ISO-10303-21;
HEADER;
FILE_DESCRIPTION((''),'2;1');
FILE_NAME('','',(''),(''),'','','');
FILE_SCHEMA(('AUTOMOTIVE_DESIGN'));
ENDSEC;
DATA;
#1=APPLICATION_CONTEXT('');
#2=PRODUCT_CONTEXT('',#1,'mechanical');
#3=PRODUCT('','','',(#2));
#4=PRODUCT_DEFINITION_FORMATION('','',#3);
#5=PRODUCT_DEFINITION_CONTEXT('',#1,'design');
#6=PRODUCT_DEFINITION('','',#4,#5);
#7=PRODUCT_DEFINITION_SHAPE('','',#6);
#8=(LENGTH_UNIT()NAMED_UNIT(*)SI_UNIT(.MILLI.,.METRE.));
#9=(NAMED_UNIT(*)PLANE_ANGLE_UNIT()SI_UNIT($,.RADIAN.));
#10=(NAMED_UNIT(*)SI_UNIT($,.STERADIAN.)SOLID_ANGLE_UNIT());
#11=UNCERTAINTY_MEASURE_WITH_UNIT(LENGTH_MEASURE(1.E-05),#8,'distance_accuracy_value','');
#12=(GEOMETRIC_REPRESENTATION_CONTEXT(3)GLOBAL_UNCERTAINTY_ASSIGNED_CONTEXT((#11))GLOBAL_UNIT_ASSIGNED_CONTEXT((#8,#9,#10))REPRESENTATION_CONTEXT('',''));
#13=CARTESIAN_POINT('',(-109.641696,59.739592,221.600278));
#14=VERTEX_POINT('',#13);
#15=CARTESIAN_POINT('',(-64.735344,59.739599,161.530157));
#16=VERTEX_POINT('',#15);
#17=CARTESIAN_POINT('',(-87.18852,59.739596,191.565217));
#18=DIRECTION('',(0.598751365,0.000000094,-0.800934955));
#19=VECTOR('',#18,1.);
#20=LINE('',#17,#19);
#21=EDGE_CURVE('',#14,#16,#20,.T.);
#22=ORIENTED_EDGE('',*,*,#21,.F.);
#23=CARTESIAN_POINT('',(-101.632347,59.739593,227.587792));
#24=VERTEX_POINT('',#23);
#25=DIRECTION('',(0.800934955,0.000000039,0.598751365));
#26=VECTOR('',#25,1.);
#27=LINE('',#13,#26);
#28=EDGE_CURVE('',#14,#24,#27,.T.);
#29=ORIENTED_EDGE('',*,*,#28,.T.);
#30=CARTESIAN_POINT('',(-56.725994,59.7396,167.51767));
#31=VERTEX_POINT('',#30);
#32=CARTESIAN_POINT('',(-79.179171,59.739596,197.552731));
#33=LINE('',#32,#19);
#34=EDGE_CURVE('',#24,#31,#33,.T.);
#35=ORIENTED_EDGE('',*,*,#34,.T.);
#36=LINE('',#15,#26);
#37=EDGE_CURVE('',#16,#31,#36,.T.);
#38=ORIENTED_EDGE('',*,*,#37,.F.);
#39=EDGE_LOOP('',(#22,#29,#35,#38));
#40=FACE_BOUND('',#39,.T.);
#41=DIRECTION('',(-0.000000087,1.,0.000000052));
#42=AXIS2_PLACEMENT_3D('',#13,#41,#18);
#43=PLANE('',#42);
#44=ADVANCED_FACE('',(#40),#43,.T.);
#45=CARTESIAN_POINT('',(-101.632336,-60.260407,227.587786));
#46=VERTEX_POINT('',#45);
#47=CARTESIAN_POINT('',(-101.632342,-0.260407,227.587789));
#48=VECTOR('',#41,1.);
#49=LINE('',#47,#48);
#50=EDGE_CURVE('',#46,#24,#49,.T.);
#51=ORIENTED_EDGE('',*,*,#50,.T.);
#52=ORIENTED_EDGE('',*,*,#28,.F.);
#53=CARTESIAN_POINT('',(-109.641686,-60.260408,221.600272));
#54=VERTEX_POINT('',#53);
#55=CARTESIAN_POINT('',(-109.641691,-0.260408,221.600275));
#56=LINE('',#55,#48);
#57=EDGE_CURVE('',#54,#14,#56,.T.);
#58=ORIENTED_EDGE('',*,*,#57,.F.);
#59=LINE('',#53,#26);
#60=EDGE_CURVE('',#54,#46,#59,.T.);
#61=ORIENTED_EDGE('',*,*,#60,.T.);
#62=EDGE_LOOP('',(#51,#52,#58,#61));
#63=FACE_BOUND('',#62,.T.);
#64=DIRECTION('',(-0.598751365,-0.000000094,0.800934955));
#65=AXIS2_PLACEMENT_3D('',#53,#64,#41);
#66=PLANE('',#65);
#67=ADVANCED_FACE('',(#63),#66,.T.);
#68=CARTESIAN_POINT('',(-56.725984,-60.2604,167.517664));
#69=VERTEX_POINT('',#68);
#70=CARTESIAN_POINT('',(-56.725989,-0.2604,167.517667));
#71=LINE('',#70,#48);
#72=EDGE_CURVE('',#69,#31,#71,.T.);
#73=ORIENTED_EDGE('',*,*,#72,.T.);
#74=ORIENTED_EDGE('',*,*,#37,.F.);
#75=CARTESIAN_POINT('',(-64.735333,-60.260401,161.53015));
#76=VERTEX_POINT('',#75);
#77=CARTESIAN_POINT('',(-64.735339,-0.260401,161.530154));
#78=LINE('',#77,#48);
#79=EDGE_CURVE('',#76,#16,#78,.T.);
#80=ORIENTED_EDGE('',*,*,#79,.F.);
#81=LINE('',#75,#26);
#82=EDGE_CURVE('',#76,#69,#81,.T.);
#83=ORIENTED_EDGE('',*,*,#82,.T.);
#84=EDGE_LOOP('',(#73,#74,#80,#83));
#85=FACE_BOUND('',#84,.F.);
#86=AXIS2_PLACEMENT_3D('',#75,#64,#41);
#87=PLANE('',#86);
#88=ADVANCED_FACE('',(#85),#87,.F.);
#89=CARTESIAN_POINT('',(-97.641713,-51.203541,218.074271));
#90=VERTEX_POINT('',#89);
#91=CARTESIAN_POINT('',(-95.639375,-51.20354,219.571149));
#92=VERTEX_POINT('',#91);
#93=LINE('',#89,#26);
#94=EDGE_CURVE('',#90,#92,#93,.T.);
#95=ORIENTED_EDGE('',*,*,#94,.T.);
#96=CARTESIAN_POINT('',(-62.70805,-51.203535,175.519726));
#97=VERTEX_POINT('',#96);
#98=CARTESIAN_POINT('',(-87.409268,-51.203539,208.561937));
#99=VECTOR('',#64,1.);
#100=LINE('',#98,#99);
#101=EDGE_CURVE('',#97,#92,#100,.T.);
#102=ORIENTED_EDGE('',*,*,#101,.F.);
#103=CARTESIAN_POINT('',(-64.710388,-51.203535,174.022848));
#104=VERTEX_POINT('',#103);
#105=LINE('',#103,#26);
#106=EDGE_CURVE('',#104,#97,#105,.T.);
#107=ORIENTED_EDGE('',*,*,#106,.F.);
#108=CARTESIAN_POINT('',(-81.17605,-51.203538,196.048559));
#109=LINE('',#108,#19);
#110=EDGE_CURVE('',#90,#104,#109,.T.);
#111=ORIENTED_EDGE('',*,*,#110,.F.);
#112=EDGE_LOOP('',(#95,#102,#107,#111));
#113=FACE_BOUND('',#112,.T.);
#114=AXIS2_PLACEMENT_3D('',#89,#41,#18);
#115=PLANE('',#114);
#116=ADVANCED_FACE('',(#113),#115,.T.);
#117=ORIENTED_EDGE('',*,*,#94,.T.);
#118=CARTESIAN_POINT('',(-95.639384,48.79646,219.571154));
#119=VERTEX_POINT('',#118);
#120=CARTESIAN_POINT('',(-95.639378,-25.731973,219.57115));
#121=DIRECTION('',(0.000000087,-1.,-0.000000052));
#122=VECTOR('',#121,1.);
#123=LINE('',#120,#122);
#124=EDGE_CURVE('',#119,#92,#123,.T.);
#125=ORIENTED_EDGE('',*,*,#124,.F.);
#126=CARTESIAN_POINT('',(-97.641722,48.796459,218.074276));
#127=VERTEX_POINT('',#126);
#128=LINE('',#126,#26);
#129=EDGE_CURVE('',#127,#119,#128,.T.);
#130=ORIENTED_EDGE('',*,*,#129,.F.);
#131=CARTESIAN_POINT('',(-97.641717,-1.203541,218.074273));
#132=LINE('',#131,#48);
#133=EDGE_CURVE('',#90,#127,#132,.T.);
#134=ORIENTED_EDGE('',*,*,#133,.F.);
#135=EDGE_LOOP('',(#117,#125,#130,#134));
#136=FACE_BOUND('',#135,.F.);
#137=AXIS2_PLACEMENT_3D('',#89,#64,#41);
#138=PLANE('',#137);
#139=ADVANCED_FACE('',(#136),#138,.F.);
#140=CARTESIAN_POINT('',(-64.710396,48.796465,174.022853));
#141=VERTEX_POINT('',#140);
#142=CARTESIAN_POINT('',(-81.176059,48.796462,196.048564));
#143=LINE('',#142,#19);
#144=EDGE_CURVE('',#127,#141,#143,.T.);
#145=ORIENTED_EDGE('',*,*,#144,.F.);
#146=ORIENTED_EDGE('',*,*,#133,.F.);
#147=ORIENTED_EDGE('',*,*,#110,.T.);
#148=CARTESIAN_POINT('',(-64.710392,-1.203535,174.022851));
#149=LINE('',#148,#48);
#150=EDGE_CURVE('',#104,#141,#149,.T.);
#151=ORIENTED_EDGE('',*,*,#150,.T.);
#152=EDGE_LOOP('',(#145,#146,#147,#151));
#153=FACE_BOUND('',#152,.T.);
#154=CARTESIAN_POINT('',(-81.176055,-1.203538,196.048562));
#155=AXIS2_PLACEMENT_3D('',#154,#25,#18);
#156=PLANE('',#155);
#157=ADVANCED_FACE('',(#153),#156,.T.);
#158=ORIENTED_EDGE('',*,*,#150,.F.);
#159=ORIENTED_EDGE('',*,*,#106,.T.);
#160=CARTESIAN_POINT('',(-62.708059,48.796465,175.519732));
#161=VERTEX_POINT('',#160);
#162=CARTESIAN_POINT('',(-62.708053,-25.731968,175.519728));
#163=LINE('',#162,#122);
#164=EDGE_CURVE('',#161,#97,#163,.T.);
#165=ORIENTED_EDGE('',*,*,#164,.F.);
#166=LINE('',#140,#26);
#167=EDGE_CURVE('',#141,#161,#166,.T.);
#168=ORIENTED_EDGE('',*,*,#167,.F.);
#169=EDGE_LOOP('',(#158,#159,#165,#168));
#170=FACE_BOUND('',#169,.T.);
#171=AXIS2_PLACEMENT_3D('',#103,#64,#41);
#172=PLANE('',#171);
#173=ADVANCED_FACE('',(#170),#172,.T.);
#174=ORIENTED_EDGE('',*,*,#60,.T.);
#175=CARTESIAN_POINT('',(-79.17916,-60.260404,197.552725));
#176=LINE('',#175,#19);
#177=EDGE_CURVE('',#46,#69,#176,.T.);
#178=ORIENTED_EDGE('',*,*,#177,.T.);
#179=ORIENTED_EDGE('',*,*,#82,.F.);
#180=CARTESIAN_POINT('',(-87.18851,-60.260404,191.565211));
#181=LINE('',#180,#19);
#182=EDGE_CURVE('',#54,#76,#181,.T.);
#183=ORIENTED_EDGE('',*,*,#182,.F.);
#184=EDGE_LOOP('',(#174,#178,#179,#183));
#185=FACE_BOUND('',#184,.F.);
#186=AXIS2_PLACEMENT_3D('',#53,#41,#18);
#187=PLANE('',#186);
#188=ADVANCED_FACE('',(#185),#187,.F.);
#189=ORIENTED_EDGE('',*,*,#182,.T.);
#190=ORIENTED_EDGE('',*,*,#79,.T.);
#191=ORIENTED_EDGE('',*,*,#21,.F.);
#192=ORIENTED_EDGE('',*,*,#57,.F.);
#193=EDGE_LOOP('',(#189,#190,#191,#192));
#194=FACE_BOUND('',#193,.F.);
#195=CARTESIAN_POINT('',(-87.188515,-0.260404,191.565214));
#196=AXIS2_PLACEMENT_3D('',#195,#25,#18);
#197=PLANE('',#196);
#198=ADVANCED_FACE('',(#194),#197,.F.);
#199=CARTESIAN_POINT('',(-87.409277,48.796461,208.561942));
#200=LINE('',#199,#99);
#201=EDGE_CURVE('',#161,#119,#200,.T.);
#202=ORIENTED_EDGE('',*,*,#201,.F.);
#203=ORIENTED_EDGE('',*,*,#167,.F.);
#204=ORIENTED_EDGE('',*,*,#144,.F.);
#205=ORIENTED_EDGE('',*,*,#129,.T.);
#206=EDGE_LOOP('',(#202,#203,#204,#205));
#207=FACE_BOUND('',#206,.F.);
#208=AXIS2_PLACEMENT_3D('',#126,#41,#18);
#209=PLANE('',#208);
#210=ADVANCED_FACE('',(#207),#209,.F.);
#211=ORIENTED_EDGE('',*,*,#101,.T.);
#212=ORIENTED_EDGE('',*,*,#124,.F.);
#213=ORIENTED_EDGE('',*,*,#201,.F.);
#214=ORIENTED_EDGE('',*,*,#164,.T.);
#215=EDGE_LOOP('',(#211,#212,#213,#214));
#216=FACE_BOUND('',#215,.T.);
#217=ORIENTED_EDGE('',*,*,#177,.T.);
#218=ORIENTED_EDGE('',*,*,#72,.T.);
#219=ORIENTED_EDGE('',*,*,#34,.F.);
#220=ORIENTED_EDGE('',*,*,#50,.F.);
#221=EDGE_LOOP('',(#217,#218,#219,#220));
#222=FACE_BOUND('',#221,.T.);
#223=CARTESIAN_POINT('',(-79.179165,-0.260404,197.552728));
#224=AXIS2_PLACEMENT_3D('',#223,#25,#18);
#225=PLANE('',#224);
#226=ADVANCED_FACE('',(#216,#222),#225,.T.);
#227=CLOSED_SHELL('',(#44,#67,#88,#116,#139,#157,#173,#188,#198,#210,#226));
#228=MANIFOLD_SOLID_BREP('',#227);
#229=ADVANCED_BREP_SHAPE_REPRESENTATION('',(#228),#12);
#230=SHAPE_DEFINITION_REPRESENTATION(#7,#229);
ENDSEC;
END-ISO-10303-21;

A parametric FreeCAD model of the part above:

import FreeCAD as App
import Part
import Sketcher

V = App.Vector

doc = App.newDocument("Part")
body = doc.addObject("PartDesign::Body", "Body")

sketch1 = body.newObject("Sketcher::SketchObject", "Sketch")
sketch1.AttachmentSupport = (doc.getObject("XY_Plane"), [""])
sketch1.MapMode = "FlatFace"
sketch1.AttachmentOffset = App.Placement(V(0, 0, 7.5), App.Rotation())
sketch1.addGeometry([
    Part.LineSegment(V(-115, 146, 0), V(-115, 46, 0)),
    Part.LineSegment(V(-115, 46, 0), V(-60, 46, 0)),
    Part.LineSegment(V(-60, 46, 0), V(-60, 146, 0)),
    Part.LineSegment(V(-60, 146, 0), V(-115, 146, 0)),
], False)
sketch1.addConstraint([
    Sketcher.Constraint("Coincident", 0, 2, 1, 1),
    Sketcher.Constraint("Coincident", 1, 2, 2, 1),
    Sketcher.Constraint("Coincident", 2, 2, 3, 1),
    Sketcher.Constraint("Coincident", 3, 2, 0, 1),
    Sketcher.Constraint("Vertical", 0),
    Sketcher.Constraint("Horizontal", 1),
    Sketcher.Constraint("Vertical", 2),
    Sketcher.Constraint("Horizontal", 3),
    Sketcher.Constraint("DistanceX", 1, 1, 1, 2, 55.0),
    Sketcher.Constraint("DistanceY", 0, 2, 0, 1, 100.0),
    Sketcher.Constraint("DistanceX", 0, 2, -1, 1, 115.0),
    Sketcher.Constraint("DistanceY", -1, 1, 0, 2, 45.8),
])
pad1 = body.newObject("PartDesign::Pad", "Pad")
pad1.Profile = sketch1
pad1.Length = 10
body2 = doc.addObject("PartDesign::Body", "Body001")

sketch2 = body2.newObject("Sketcher::SketchObject", "Sketch001")
sketch2.AttachmentSupport = (doc.getObject("XY_Plane001"), [""])
sketch2.MapMode = "FlatFace"
sketch2.addGeometry([
    Part.LineSegment(V(-125, 157, 0), V(-125, 37, 0)),
    Part.LineSegment(V(-125, 37, 0), V(-50, 37, 0)),
    Part.LineSegment(V(-50, 37, 0), V(-50, 157, 0)),
    Part.LineSegment(V(-50, 157, 0), V(-125, 157, 0)),
], False)
sketch2.addConstraint([
    Sketcher.Constraint("Coincident", 0, 2, 1, 1),
    Sketcher.Constraint("Coincident", 1, 2, 2, 1),
    Sketcher.Constraint("Coincident", 2, 2, 3, 1),
    Sketcher.Constraint("Coincident", 3, 2, 0, 1),
    Sketcher.Constraint("Vertical", 0),
    Sketcher.Constraint("Horizontal", 1),
    Sketcher.Constraint("Vertical", 2),
    Sketcher.Constraint("Horizontal", 3),
    Sketcher.Constraint("DistanceX", 1, 1, 1, 2, 75.0),
    Sketcher.Constraint("DistanceY", 0, 2, 0, 1, 120.0),
    Sketcher.Constraint("DistanceX", 0, 2, -1, 1, 125.009099),
    Sketcher.Constraint("DistanceY", -1, 1, 0, 2, 36.743134),
])
pad2 = body2.newObject("PartDesign::Pad", "Pad001")
pad2.Profile = sketch2
pad2.Length = 10
doc.recompute()

boolean = body2.newObject("PartDesign::Boolean", "Boolean")
boolean.Type = "Cut"
boolean.addObjects([body])
body3 = doc.addObject("PartDesign::Body", "Body002")
doc.recompute()

body2.Placement = App.Placement(V(0, 0, 0), App.Rotation(V(1, 0, 0), 0.000005))
boolean2 = body3.newObject("PartDesign::Boolean", "Boolean001")
boolean2.Type = "Fuse"
boolean2.addObjects([body2])
body4 = doc.addObject("PartDesign::Body", "Body003")
doc.recompute()

body3.Placement = App.Placement(V(0, 0, 0), App.Rotation(V(0, 1, 0), 53.219477))
boolean3 = body4.newObject("PartDesign::Boolean", "Boolean002")
boolean3.Type = "Fuse"
boolean3.addObjects([body3])
body5 = doc.addObject("PartDesign::Body", "Body004")
doc.recompute()

body4.Placement = App.Placement(V(-34.792314, -97.00353, 121.476113), App.Rotation(V(0, 0, 1), 0.000009))
boolean4 = body5.newObject("PartDesign::Boolean", "Boolean003")
boolean4.Type = "Fuse"
boolean4.addObjects([body4])

doc.recompute()
